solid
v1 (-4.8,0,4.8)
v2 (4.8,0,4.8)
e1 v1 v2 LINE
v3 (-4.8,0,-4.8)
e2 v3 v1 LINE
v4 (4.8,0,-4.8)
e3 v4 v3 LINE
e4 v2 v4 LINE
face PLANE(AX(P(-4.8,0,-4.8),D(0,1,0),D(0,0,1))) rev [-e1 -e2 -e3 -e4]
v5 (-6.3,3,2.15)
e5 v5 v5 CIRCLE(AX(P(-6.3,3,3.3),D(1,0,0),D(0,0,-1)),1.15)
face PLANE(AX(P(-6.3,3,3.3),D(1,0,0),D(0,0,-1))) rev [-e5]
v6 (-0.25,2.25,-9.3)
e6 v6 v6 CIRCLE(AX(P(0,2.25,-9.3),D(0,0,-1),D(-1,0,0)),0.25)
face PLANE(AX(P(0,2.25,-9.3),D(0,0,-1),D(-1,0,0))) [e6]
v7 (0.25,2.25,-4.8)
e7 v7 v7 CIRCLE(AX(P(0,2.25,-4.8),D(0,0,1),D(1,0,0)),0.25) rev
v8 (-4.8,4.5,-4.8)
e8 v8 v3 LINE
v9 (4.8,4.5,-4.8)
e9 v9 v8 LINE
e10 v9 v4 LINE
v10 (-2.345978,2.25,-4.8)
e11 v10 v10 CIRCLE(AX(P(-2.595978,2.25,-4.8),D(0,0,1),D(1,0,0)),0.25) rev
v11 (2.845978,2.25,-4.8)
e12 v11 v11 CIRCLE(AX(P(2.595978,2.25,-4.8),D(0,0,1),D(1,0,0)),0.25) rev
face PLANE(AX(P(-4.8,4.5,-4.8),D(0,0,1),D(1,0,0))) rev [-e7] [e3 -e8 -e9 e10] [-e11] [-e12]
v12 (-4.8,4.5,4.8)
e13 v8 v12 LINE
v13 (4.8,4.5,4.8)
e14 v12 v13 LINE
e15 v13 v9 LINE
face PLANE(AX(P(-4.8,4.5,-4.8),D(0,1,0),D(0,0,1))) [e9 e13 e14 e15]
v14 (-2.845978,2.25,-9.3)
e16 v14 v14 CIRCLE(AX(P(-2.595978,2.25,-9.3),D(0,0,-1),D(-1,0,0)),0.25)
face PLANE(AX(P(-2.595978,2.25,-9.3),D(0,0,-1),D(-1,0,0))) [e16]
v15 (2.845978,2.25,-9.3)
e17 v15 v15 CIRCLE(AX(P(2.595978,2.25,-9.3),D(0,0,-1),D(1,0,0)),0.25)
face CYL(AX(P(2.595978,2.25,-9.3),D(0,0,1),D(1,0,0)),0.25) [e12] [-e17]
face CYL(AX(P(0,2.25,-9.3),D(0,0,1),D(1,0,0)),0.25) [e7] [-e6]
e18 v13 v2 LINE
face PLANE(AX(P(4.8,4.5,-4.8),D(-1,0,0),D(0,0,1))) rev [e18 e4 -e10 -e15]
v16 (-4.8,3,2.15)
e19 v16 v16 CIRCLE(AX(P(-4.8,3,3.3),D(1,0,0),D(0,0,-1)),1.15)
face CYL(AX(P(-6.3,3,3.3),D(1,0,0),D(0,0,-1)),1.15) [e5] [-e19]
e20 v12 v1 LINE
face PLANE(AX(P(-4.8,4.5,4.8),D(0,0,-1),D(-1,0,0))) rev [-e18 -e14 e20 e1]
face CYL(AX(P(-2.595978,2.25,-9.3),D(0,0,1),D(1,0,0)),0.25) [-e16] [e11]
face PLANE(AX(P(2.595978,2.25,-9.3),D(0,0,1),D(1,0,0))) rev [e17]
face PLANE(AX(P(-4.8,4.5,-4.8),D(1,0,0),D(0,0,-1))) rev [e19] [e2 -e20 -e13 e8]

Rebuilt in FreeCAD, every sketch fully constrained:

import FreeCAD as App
import Part
import Sketcher
Q = App.Units.Quantity

doc = App.newDocument("Part")
body = doc.addObject("PartDesign::Body", "Body")

# Sketch on XZ plane
sketch1 = body.newObject("Sketcher::SketchObject", "Sketch")
sketch1.AttachmentSupport = (doc.getObject("XZ_Plane"), [""])
sketch1.MapMode = "FlatFace"
sketch1.addGeometry([
    Part.LineSegment(App.Vector(-5, -5, 0), App.Vector(-5, 5, 0)),
    Part.LineSegment(App.Vector(-5, 5, 0), App.Vector(5, 5, 0)),
    Part.LineSegment(App.Vector(5, 5, 0), App.Vector(5, -5, 0)),
    Part.LineSegment(App.Vector(5, -5, 0), App.Vector(-5, -5, 0)),
], False)
sketch1.addConstraint([
    Sketcher.Constraint("Coincident", 0, 2, 1, 1),
    Sketcher.Constraint("Coincident", 1, 2, 2, 1),
    Sketcher.Constraint("Coincident", 2, 2, 3, 1),
    Sketcher.Constraint("Coincident", 3, 2, 0, 1),
    Sketcher.Constraint("Vertical", 0),
    Sketcher.Constraint("Horizontal", 1),
    Sketcher.Constraint("Vertical", 2),
    Sketcher.Constraint("Horizontal", 3),
    Sketcher.Constraint("Symmetric", 0, 2, 2, 2, -1, 1),
    Sketcher.Constraint("Equal", 3, 0),
    Sketcher.Constraint("DistanceX", 1, 1, 1, 2, Q("9.6 mm")),
])
pad1 = body.newObject("PartDesign::Pad", "Pad")
pad1.Profile = sketch1
pad1.Length = 4.5
pad1.Reversed = True

# Sketch on XY plane
sketch2 = body.newObject("Sketcher::SketchObject", "Sketch001")
sketch2.AttachmentSupport = (doc.getObject("XY_Plane"), [""])
sketch2.MapMode = "FlatFace"
sketch2.AttachmentOffset = App.Placement(App.Vector(0, 0, -4.8), App.Rotation())
sketch2.addGeometry([
    Part.Circle(App.Vector(0, 2.25, 0), App.Vector(0, 0, 1), 0.25),
    Part.Circle(App.Vector(-2.6, 2.25, 0), App.Vector(0, 0, 1), 0.25),
    Part.Circle(App.Vector(2.6, 2.25, 0), App.Vector(0, 0, 1), 0.25),
], False)
sketch2.addConstraint([
    Sketcher.Constraint("Equal", 0, 1),
    Sketcher.Constraint("Equal", 1, 2),
    Sketcher.Constraint("Symmetric", 1, 3, 2, 3, -2),
    Sketcher.Constraint("PointOnObject", 0, 3, -2),
    Sketcher.Constraint("Horizontal", 0, 3, 1, 3),
    Sketcher.Constraint("Diameter", 0, Q("0.5 mm")),
    Sketcher.Constraint("DistanceY", -1, 1, 0, 3, Q("2.25 mm")),
    Sketcher.Constraint("DistanceX", 1, 3, -1, 1, Q("2.595978 mm")),
])
pad2 = body.newObject("PartDesign::Pad", "Pad001")
pad2.Profile = sketch2
pad2.Length = 4.5
pad2.Reversed = True

# Sketch on YZ plane
sketch3 = body.newObject("Sketcher::SketchObject", "Sketch002")
sketch3.AttachmentSupport = (doc.getObject("YZ_Plane"), [""])
sketch3.MapMode = "FlatFace"
sketch3.AttachmentOffset = App.Placement(App.Vector(0, 0, -4.8), App.Rotation())
sketch3.addGeometry(Part.Circle(App.Vector(3, 3.3, 0), App.Vector(0, 0, 1), 1.1), False)
sketch3.addConstraint([
    Sketcher.Constraint("Diameter", 0, Q("2.3 mm")),
    Sketcher.Constraint("DistanceX", -1, 1, 0, 3, Q("3 mm")),
    Sketcher.Constraint("DistanceY", -1, 1, 0, 3, Q("3.3 mm")),
])
pad3 = body.newObject("PartDesign::Pad", "Pad002")
pad3.Profile = sketch3
pad3.Length = 1.5
pad3.Reversed = True

doc.recompute()
